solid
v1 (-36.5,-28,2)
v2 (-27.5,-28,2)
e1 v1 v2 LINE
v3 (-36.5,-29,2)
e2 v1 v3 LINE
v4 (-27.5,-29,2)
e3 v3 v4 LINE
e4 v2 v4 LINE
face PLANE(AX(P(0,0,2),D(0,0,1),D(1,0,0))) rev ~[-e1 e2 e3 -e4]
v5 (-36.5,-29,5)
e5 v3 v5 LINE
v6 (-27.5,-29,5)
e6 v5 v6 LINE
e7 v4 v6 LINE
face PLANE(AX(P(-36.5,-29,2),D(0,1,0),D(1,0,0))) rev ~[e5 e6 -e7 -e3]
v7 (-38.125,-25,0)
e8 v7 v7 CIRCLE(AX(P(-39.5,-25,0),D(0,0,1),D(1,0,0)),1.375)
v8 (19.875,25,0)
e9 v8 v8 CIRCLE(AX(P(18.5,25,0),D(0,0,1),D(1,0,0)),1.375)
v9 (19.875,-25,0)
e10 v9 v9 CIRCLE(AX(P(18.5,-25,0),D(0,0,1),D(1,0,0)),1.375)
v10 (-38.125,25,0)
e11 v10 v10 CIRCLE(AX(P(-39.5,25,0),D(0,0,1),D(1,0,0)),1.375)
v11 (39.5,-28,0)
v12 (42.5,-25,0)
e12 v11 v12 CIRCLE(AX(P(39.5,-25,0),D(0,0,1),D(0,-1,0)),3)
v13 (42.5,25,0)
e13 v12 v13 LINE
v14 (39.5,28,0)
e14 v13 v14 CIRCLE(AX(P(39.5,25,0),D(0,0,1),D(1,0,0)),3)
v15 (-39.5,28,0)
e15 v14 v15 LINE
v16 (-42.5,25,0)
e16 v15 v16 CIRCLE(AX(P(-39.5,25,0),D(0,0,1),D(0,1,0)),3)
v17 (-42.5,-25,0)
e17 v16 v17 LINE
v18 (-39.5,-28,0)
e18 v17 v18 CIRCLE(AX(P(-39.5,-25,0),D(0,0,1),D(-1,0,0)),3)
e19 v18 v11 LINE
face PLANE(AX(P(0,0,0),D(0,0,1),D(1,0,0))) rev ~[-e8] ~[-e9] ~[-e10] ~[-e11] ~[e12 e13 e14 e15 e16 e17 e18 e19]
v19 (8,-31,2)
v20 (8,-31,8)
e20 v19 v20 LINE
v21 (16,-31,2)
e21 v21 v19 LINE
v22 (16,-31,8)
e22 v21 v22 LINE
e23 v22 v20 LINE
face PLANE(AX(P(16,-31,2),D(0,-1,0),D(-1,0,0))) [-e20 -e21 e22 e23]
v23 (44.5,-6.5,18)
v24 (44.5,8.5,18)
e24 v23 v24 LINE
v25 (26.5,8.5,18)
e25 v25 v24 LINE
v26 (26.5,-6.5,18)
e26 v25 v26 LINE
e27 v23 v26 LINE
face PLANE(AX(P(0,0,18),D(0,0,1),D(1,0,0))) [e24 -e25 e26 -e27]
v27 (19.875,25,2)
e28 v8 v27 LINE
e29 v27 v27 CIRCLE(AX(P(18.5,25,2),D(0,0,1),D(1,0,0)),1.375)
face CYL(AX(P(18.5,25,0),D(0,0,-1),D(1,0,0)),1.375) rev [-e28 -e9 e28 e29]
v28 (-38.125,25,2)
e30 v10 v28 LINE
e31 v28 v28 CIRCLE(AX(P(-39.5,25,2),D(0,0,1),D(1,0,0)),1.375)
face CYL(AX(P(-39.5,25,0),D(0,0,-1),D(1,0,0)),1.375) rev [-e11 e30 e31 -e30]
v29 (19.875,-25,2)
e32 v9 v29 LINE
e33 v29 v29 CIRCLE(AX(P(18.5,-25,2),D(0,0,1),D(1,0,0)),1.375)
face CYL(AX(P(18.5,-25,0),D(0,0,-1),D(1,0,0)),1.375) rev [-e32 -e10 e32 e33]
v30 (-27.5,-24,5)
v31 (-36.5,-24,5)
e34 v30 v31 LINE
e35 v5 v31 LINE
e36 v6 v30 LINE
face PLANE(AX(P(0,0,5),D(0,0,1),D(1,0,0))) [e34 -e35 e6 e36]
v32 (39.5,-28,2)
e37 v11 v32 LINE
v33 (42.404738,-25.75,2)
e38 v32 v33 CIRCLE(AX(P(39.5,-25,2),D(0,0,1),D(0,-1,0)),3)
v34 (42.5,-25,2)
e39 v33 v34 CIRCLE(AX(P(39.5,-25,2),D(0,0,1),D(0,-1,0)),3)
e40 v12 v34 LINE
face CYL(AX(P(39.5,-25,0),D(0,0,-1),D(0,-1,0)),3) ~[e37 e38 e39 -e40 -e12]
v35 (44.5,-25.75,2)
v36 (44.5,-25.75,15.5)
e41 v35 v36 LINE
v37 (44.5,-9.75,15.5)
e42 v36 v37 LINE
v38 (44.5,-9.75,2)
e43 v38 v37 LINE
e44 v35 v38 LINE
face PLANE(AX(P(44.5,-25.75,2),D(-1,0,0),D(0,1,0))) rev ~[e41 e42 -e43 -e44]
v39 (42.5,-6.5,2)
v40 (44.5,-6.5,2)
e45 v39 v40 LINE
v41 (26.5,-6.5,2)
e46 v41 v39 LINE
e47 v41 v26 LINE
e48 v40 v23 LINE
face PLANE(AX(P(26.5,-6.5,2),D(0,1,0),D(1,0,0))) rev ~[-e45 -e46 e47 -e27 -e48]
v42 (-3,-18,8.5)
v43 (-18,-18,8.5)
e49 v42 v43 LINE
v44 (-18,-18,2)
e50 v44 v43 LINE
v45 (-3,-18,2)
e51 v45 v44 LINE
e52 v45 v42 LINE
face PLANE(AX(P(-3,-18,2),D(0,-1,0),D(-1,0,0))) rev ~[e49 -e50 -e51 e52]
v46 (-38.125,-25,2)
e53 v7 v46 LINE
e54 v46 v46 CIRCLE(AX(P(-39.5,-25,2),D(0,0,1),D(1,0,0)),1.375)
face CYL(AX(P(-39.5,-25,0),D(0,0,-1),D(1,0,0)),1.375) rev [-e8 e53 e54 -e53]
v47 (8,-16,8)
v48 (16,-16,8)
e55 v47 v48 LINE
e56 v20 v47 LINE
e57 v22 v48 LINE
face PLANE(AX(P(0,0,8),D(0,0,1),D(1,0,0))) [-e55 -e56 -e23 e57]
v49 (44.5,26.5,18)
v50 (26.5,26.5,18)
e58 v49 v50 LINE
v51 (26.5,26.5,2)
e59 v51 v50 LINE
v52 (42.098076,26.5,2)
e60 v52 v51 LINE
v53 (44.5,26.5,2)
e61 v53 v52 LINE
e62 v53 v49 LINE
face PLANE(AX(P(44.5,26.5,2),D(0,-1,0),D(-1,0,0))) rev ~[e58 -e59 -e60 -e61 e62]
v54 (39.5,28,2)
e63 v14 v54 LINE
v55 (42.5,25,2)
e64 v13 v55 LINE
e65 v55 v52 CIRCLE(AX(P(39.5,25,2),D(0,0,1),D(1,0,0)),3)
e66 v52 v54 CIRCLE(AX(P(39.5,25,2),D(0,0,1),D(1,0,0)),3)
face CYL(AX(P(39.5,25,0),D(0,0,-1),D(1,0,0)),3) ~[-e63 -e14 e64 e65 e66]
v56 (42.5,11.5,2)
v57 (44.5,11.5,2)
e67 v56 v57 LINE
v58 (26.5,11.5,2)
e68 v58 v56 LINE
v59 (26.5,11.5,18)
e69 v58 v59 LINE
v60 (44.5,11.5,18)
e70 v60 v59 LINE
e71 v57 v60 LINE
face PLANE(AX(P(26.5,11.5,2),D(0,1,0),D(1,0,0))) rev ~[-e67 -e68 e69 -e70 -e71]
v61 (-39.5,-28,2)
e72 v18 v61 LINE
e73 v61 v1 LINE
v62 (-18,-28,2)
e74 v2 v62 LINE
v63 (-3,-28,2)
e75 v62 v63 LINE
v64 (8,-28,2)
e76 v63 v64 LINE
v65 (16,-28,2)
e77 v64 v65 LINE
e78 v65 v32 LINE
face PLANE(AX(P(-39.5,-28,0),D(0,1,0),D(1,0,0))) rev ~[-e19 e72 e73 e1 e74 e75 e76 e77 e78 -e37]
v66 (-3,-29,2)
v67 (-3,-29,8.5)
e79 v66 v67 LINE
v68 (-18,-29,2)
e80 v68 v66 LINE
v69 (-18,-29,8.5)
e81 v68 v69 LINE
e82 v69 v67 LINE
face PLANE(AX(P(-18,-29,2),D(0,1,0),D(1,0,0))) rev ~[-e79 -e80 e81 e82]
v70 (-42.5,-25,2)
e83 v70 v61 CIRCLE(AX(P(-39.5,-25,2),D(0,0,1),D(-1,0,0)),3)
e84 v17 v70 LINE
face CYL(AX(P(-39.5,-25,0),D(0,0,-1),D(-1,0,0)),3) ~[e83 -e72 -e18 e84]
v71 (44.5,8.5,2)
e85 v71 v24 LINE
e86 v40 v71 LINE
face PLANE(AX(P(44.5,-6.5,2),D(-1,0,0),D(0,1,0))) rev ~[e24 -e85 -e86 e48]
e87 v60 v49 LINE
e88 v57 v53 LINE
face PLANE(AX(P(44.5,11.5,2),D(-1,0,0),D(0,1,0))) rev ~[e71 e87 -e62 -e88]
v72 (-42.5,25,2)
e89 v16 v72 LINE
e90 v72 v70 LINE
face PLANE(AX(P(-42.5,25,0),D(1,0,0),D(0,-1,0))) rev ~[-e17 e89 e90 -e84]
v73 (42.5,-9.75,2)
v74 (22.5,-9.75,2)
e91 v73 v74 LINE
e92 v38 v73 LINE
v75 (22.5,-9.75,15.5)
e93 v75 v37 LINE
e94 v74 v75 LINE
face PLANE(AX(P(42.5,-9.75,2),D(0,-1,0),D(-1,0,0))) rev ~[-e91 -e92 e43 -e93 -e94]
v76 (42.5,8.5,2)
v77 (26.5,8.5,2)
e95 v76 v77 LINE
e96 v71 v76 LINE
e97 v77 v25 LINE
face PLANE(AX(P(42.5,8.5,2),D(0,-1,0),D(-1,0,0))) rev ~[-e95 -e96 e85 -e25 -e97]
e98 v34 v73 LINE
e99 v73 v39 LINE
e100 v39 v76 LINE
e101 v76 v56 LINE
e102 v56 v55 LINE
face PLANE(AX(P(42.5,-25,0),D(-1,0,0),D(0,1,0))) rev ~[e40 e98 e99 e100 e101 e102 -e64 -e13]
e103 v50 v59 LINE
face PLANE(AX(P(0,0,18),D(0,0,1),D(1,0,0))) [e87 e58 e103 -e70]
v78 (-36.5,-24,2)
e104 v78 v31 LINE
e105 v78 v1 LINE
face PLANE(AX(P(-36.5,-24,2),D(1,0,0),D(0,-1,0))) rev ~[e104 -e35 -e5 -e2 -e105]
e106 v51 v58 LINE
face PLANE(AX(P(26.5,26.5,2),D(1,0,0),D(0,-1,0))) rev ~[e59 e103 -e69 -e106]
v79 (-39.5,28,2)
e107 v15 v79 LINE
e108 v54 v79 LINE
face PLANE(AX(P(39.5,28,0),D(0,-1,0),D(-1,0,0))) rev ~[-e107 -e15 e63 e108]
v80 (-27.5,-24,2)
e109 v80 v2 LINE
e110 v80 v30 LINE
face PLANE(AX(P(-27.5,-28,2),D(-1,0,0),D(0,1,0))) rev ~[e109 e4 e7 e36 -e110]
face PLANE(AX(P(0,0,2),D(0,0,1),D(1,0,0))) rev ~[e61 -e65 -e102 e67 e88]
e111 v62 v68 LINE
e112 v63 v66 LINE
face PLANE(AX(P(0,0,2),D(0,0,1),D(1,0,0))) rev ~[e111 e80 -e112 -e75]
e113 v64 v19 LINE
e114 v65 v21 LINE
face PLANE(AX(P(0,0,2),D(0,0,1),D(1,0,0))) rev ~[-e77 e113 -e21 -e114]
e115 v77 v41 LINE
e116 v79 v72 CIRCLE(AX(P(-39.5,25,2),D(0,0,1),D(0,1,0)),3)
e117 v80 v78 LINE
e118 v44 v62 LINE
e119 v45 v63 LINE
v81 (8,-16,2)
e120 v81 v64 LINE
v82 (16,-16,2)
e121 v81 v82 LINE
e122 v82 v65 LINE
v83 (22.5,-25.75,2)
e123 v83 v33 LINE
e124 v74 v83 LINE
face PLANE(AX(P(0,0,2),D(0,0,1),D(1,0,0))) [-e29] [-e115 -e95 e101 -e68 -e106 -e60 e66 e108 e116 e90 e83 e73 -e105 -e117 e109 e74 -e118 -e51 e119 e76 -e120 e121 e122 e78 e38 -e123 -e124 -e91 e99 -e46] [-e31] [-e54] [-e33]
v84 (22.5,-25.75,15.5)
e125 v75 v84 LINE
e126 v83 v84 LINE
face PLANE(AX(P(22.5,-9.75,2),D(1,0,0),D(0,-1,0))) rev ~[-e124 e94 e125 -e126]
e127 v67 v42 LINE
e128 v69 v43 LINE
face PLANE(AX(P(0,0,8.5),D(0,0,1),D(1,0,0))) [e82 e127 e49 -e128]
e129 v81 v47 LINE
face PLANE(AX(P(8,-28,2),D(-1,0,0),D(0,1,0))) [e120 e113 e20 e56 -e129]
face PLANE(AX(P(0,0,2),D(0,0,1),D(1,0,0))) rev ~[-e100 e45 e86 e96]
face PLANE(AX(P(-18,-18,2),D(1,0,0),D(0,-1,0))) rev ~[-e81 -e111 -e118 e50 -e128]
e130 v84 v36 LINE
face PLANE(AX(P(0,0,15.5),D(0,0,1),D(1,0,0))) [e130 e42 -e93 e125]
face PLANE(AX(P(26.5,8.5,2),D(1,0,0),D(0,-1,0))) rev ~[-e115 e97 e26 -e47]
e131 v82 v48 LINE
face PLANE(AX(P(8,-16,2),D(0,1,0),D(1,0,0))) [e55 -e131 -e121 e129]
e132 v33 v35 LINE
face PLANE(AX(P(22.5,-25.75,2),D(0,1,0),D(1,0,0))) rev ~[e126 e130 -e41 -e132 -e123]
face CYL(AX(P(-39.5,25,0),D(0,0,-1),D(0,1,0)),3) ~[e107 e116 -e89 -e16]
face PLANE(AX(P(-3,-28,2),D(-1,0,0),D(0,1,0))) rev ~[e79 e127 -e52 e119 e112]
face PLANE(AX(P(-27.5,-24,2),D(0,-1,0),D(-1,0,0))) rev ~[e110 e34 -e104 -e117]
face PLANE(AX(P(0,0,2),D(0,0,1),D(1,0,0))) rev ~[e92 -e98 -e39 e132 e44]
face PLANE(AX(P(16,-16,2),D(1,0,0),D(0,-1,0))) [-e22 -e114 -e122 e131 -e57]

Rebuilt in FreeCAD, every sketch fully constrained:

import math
import FreeCAD as App
import Part
import Sketcher
from FreeCAD import Vector


def add_polygon(sketch, points):
    """Adds a closed chain of lines whose ends are joined by coincident constraints."""
    first, n = sketch.GeometryCount, len(points)
    for a, b in zip(points, points[1:] + points[:1]):
        sketch.addGeometry(Part.LineSegment(App.Vector(*a, 0), App.Vector(*b, 0)), False)
    for i in range(n):
        sketch.addConstraint(Sketcher.Constraint("Coincident", first + i, 2, first + (i + 1) % n, 1))

doc = App.newDocument("Part")
body = doc.addObject("PartDesign::Body", "Body")

# Sketch on XY plane
sketch1 = doc.addObject("Sketcher::SketchObject", "Sketch")
body.addObject(sketch1)
sketch1.AttachmentSupport = (doc.XY_Plane, [""])
sketch1.MapMode = "FlatFace"
sketch1.addGeometry(Part.ArcOfCircle(Part.Circle(Vector(-39.5, -25, 0), Vector(0, 0, 1), 3), math.radians(180), math.radians(270)), False)
sketch1.addGeometry(Part.LineSegment(Vector(-39.5, -28, 0), Vector(39.5, -28, 0)), False)
sketch1.addGeometry(Part.ArcOfCircle(Part.Circle(Vector(39.5, -25, 0), Vector(0, 0, 1), 3), math.radians(-90), math.radians(0)), False)
sketch1.addGeometry(Part.LineSegment(Vector(42.5, -25, 0), Vector(42.5, 25, 0)), False)
sketch1.addGeometry(Part.ArcOfCircle(Part.Circle(Vector(39.5, 25, 0), Vector(0, 0, 1), 3), math.radians(0), math.radians(90)), False)
sketch1.addGeometry(Part.LineSegment(Vector(39.5, 28, 0), Vector(-39.5, 28, 0)), False)
sketch1.addGeometry(Part.ArcOfCircle(Part.Circle(Vector(-39.5, 25, 0), Vector(0, 0, 1), 3), math.radians(90), math.radians(180)), False)
sketch1.addGeometry(Part.LineSegment(Vector(-42.5, 25, 0), Vector(-42.5, -25, 0)), False)
sketch1.addGeometry(Part.Circle(Vector(-39.5, -25, 0), Vector(0, 0, 1), 1.4), False)
sketch1.addGeometry(Part.Circle(Vector(18.5, -25, 0), Vector(0, 0, 1), 1.4), False)
sketch1.addGeometry(Part.Circle(Vector(-39.5, 25, 0), Vector(0, 0, 1), 1.4), False)
sketch1.addGeometry(Part.Circle(Vector(18.5, 25, 0), Vector(0, 0, 1), 1.4), False)
sketch1.addConstraint(Sketcher.Constraint("Tangent", 0, 2, 1, 1))
sketch1.addConstraint(Sketcher.Constraint("Tangent", 1, 2, 2, 1))
sketch1.addConstraint(Sketcher.Constraint("Tangent", 2, 2, 3, 1))
sketch1.addConstraint(Sketcher.Constraint("Tangent", 3, 2, 4, 1))
sketch1.addConstraint(Sketcher.Constraint("Tangent", 4, 2, 5, 1))
sketch1.addConstraint(Sketcher.Constraint("Tangent", 5, 2, 6, 1))
sketch1.addConstraint(Sketcher.Constraint("Tangent", 6, 2, 7, 1))
sketch1.addConstraint(Sketcher.Constraint("Tangent", 7, 2, 0, 1))
sketch1.addConstraint(Sketcher.Constraint("Horizontal", 1))
sketch1.addConstraint(Sketcher.Constraint("Vertical", 3))
sketch1.addConstraint(Sketcher.Constraint("Horizontal", 5))
sketch1.addConstraint(Sketcher.Constraint("Vertical", 7))
sketch1.addConstraint(Sketcher.Constraint("Coincident", 8, 3, 0, 3))
sketch1.addConstraint(Sketcher.Constraint("Coincident", 10, 3, 6, 3))
sketch1.addConstraint(Sketcher.Constraint("Equal", 0, 2))
sketch1.addConstraint(Sketcher.Constraint("Equal", 2, 4))
sketch1.addConstraint(Sketcher.Constraint("Equal", 4, 6))
sketch1.addConstraint(Sketcher.Constraint("Equal", 8, 9))
sketch1.addConstraint(Sketcher.Constraint("Equal", 9, 10))
sketch1.addConstraint(Sketcher.Constraint("Equal", 10, 11))
sketch1.addConstraint(Sketcher.Constraint("Symmetric", 0, 3, 4, 3, -1, 1))
sketch1.addConstraint(Sketcher.Constraint("Symmetric", 9, 3, 11, 3, -1))
sketch1.addConstraint(Sketcher.Constraint("Horizontal", 8, 3, 9, 3))
sketch1.addConstraint(Sketcher.Constraint("Radius", 0, 3.0))
sketch1.addConstraint(Sketcher.Constraint("Diameter", 8, 2.75))
sketch1.addConstraint(Sketcher.Constraint("DistanceX", 0, 3, 9, 3, 58.0))
sketch1.addConstraint(Sketcher.Constraint("DistanceY", 0, 2, 5, 2, 56.0))
sketch1.addConstraint(Sketcher.Constraint("DistanceX", 1, 1, 1, 2, 79.0))
pad1 = doc.addObject("PartDesign::Pad", "Pad")
body.addObject(pad1)
pad1.Profile = sketch1
pad1.Length = 2

# Sketch on XY plane
sketch2 = doc.addObject("Sketcher::SketchObject", "Sketch001")
body.addObject(sketch2)
sketch2.AttachmentSupport = (doc.XY_Plane, [""])
sketch2.MapMode = "FlatFace"
sketch2.AttachmentOffset = App.Placement(Vector(0, 0, 2), App.Rotation())
add_polygon(sketch2, [(44, -10), (22, -10), (22, -26), (44, -26)])  # lines 0-3
sketch2.addConstraint(Sketcher.Constraint("Horizontal", 0))
sketch2.addConstraint(Sketcher.Constraint("Vertical", 1))
sketch2.addConstraint(Sketcher.Constraint("Horizontal", 2))
sketch2.addConstraint(Sketcher.Constraint("Vertical", 3))
sketch2.addConstraint(Sketcher.Constraint("DistanceX", 0, 2, 0, 1, 22.0))
sketch2.addConstraint(Sketcher.Constraint("DistanceY", 1, 2, 1, 1, 16.0))
sketch2.addConstraint(Sketcher.Constraint("DistanceX", -1, 1, 0, 2, 22.5))
sketch2.addConstraint(Sketcher.Constraint("DistanceY", 0, 2, -1, 1, 9.75))
pad2 = doc.addObject("PartDesign::Pad", "Pad001")
body.addObject(pad2)
pad2.Profile = sketch2
pad2.Length = 13.5

# Sketch on XY plane
sketch3 = doc.addObject("Sketcher::SketchObject", "Sketch002")
body.addObject(sketch3)
sketch3.AttachmentSupport = (doc.XY_Plane, [""])
sketch3.MapMode = "FlatFace"
sketch3.AttachmentOffset = App.Placement(Vector(0, 0, 2), App.Rotation())
add_polygon(sketch3, [(8, -16), (8, -31), (16, -31), (16, -16)])  # lines 0-3
sketch3.addConstraint(Sketcher.Constraint("Vertical", 0))
sketch3.addConstraint(Sketcher.Constraint("Horizontal", 1))
sketch3.addConstraint(Sketcher.Constraint("Vertical", 2))
sketch3.addConstraint(Sketcher.Constraint("Horizontal", 3))
sketch3.addConstraint(Sketcher.Constraint("DistanceX", 1, 1, 1, 2, 8.0))
sketch3.addConstraint(Sketcher.Constraint("DistanceY", 0, 2, 0, 1, 15.0))
sketch3.addConstraint(Sketcher.Constraint("DistanceX", -1, 1, 0, 2, 8.0))
sketch3.addConstraint(Sketcher.Constraint("DistanceY", 2, 2, -1, 1, 16.0))
pad3 = doc.addObject("PartDesign::Pad", "Pad002")
body.addObject(pad3)
pad3.Profile = sketch3
pad3.Length = 6

# Sketch on XY plane
sketch4 = doc.addObject("Sketcher::SketchObject", "Sketch003")
body.addObject(sketch4)
sketch4.AttachmentSupport = (doc.XY_Plane, [""])
sketch4.MapMode = "FlatFace"
sketch4.AttachmentOffset = App.Placement(Vector(0, 0, 2), App.Rotation())
add_polygon(sketch4, [(-18, -18), (-18, -29), (-3, -29), (-3, -18)])  # lines 0-3
sketch4.addConstraint(Sketcher.Constraint("Vertical", 0))
sketch4.addConstraint(Sketcher.Constraint("Horizontal", 1))
sketch4.addConstraint(Sketcher.Constraint("Vertical", 2))
sketch4.addConstraint(Sketcher.Constraint("Horizontal", 3))
sketch4.addConstraint(Sketcher.Constraint("DistanceX", 1, 1, 1, 2, 15.0))
sketch4.addConstraint(Sketcher.Constraint("DistanceY", 0, 2, 0, 1, 11.0))
sketch4.addConstraint(Sketcher.Constraint("DistanceY", 0, 2, -1, 1, 29.0))
sketch4.addConstraint(Sketcher.Constraint("DistanceX", 1, 2, -1, 1, 3.0))
pad4 = doc.addObject("PartDesign::Pad", "Pad003")
body.addObject(pad4)
pad4.Profile = sketch4
pad4.Length = 6.5

# Sketch on XY plane
sketch5 = doc.addObject("Sketcher::SketchObject", "Sketch004")
body.addObject(sketch5)
sketch5.AttachmentSupport = (doc.XY_Plane, [""])
sketch5.MapMode = "FlatFace"
sketch5.AttachmentOffset = App.Placement(Vector(0, 0, 2), App.Rotation())
add_polygon(sketch5, [(-36, -24), (-36, -29), (-28, -29), (-28, -24)])  # lines 0-3
sketch5.addConstraint(Sketcher.Constraint("Vertical", 0))
sketch5.addConstraint(Sketcher.Constraint("Horizontal", 1))
sketch5.addConstraint(Sketcher.Constraint("Vertical", 2))
sketch5.addConstraint(Sketcher.Constraint("Horizontal", 3))
sketch5.addConstraint(Sketcher.Constraint("DistanceX", 1, 1, 1, 2, 9.0))
sketch5.addConstraint(Sketcher.Constraint("DistanceY", 0, 2, 0, 1, 5.0))
sketch5.addConstraint(Sketcher.Constraint("DistanceY", 0, 2, -1, 1, 29.0))
sketch5.addConstraint(Sketcher.Constraint("DistanceX", 0, 2, -1, 1, 36.5))
pad5 = doc.addObject("PartDesign::Pad", "Pad004")
body.addObject(pad5)
pad5.Profile = sketch5
pad5.Length = 3

# Sketch on XY plane
sketch6 = doc.addObject("Sketcher::SketchObject", "Sketch005")
body.addObject(sketch6)
sketch6.AttachmentSupport = (doc.XY_Plane, [""])
sketch6.MapMode = "FlatFace"
sketch6.AttachmentOffset = App.Placement(Vector(0, 0, 2), App.Rotation())
add_polygon(sketch6, [(26, 8), (26, -6), (44, -6), (44, 8)])  # lines 0-3
add_polygon(sketch6, [(26, 12), (44, 12), (44, 26), (26, 26)])  # lines 4-7
sketch6.addConstraint(Sketcher.Constraint("Vertical", 0))
sketch6.addConstraint(Sketcher.Constraint("Horizontal", 1))
sketch6.addConstraint(Sketcher.Constraint("Vertical", 2))
sketch6.addConstraint(Sketcher.Constraint("Horizontal", 3))
sketch6.addConstraint(Sketcher.Constraint("Horizontal", 4))
sketch6.addConstraint(Sketcher.Constraint("Vertical", 5))
sketch6.addConstraint(Sketcher.Constraint("Horizontal", 6))
sketch6.addConstraint(Sketcher.Constraint("Vertical", 7))
sketch6.addConstraint(Sketcher.Constraint("Vertical", 2, 2, 4, 2))
sketch6.addConstraint(Sketcher.Constraint("Vertical", 3, 2, 6, 2))
sketch6.addConstraint(Sketcher.Constraint("Equal", 2, 5))
sketch6.addConstraint(Sketcher.Constraint("DistanceY", 0, 2, 0, 1, 15.0))
sketch6.addConstraint(Sketcher.Constraint("DistanceY", 2, 2, 4, 2, 3.0))
sketch6.addConstraint(Sketcher.Constraint("DistanceX", 1, 1, 1, 2, 18.0))
sketch6.addConstraint(Sketcher.Constraint("DistanceX", -1, 1, 0, 2, 26.5))
sketch6.addConstraint(Sketcher.Constraint("DistanceY", 0, 2, -1, 1, 6.5))
pad6 = doc.addObject("PartDesign::Pad", "Pad005")
body.addObject(pad6)
pad6.Profile = sketch6
pad6.Length = 16

doc.recompute()
